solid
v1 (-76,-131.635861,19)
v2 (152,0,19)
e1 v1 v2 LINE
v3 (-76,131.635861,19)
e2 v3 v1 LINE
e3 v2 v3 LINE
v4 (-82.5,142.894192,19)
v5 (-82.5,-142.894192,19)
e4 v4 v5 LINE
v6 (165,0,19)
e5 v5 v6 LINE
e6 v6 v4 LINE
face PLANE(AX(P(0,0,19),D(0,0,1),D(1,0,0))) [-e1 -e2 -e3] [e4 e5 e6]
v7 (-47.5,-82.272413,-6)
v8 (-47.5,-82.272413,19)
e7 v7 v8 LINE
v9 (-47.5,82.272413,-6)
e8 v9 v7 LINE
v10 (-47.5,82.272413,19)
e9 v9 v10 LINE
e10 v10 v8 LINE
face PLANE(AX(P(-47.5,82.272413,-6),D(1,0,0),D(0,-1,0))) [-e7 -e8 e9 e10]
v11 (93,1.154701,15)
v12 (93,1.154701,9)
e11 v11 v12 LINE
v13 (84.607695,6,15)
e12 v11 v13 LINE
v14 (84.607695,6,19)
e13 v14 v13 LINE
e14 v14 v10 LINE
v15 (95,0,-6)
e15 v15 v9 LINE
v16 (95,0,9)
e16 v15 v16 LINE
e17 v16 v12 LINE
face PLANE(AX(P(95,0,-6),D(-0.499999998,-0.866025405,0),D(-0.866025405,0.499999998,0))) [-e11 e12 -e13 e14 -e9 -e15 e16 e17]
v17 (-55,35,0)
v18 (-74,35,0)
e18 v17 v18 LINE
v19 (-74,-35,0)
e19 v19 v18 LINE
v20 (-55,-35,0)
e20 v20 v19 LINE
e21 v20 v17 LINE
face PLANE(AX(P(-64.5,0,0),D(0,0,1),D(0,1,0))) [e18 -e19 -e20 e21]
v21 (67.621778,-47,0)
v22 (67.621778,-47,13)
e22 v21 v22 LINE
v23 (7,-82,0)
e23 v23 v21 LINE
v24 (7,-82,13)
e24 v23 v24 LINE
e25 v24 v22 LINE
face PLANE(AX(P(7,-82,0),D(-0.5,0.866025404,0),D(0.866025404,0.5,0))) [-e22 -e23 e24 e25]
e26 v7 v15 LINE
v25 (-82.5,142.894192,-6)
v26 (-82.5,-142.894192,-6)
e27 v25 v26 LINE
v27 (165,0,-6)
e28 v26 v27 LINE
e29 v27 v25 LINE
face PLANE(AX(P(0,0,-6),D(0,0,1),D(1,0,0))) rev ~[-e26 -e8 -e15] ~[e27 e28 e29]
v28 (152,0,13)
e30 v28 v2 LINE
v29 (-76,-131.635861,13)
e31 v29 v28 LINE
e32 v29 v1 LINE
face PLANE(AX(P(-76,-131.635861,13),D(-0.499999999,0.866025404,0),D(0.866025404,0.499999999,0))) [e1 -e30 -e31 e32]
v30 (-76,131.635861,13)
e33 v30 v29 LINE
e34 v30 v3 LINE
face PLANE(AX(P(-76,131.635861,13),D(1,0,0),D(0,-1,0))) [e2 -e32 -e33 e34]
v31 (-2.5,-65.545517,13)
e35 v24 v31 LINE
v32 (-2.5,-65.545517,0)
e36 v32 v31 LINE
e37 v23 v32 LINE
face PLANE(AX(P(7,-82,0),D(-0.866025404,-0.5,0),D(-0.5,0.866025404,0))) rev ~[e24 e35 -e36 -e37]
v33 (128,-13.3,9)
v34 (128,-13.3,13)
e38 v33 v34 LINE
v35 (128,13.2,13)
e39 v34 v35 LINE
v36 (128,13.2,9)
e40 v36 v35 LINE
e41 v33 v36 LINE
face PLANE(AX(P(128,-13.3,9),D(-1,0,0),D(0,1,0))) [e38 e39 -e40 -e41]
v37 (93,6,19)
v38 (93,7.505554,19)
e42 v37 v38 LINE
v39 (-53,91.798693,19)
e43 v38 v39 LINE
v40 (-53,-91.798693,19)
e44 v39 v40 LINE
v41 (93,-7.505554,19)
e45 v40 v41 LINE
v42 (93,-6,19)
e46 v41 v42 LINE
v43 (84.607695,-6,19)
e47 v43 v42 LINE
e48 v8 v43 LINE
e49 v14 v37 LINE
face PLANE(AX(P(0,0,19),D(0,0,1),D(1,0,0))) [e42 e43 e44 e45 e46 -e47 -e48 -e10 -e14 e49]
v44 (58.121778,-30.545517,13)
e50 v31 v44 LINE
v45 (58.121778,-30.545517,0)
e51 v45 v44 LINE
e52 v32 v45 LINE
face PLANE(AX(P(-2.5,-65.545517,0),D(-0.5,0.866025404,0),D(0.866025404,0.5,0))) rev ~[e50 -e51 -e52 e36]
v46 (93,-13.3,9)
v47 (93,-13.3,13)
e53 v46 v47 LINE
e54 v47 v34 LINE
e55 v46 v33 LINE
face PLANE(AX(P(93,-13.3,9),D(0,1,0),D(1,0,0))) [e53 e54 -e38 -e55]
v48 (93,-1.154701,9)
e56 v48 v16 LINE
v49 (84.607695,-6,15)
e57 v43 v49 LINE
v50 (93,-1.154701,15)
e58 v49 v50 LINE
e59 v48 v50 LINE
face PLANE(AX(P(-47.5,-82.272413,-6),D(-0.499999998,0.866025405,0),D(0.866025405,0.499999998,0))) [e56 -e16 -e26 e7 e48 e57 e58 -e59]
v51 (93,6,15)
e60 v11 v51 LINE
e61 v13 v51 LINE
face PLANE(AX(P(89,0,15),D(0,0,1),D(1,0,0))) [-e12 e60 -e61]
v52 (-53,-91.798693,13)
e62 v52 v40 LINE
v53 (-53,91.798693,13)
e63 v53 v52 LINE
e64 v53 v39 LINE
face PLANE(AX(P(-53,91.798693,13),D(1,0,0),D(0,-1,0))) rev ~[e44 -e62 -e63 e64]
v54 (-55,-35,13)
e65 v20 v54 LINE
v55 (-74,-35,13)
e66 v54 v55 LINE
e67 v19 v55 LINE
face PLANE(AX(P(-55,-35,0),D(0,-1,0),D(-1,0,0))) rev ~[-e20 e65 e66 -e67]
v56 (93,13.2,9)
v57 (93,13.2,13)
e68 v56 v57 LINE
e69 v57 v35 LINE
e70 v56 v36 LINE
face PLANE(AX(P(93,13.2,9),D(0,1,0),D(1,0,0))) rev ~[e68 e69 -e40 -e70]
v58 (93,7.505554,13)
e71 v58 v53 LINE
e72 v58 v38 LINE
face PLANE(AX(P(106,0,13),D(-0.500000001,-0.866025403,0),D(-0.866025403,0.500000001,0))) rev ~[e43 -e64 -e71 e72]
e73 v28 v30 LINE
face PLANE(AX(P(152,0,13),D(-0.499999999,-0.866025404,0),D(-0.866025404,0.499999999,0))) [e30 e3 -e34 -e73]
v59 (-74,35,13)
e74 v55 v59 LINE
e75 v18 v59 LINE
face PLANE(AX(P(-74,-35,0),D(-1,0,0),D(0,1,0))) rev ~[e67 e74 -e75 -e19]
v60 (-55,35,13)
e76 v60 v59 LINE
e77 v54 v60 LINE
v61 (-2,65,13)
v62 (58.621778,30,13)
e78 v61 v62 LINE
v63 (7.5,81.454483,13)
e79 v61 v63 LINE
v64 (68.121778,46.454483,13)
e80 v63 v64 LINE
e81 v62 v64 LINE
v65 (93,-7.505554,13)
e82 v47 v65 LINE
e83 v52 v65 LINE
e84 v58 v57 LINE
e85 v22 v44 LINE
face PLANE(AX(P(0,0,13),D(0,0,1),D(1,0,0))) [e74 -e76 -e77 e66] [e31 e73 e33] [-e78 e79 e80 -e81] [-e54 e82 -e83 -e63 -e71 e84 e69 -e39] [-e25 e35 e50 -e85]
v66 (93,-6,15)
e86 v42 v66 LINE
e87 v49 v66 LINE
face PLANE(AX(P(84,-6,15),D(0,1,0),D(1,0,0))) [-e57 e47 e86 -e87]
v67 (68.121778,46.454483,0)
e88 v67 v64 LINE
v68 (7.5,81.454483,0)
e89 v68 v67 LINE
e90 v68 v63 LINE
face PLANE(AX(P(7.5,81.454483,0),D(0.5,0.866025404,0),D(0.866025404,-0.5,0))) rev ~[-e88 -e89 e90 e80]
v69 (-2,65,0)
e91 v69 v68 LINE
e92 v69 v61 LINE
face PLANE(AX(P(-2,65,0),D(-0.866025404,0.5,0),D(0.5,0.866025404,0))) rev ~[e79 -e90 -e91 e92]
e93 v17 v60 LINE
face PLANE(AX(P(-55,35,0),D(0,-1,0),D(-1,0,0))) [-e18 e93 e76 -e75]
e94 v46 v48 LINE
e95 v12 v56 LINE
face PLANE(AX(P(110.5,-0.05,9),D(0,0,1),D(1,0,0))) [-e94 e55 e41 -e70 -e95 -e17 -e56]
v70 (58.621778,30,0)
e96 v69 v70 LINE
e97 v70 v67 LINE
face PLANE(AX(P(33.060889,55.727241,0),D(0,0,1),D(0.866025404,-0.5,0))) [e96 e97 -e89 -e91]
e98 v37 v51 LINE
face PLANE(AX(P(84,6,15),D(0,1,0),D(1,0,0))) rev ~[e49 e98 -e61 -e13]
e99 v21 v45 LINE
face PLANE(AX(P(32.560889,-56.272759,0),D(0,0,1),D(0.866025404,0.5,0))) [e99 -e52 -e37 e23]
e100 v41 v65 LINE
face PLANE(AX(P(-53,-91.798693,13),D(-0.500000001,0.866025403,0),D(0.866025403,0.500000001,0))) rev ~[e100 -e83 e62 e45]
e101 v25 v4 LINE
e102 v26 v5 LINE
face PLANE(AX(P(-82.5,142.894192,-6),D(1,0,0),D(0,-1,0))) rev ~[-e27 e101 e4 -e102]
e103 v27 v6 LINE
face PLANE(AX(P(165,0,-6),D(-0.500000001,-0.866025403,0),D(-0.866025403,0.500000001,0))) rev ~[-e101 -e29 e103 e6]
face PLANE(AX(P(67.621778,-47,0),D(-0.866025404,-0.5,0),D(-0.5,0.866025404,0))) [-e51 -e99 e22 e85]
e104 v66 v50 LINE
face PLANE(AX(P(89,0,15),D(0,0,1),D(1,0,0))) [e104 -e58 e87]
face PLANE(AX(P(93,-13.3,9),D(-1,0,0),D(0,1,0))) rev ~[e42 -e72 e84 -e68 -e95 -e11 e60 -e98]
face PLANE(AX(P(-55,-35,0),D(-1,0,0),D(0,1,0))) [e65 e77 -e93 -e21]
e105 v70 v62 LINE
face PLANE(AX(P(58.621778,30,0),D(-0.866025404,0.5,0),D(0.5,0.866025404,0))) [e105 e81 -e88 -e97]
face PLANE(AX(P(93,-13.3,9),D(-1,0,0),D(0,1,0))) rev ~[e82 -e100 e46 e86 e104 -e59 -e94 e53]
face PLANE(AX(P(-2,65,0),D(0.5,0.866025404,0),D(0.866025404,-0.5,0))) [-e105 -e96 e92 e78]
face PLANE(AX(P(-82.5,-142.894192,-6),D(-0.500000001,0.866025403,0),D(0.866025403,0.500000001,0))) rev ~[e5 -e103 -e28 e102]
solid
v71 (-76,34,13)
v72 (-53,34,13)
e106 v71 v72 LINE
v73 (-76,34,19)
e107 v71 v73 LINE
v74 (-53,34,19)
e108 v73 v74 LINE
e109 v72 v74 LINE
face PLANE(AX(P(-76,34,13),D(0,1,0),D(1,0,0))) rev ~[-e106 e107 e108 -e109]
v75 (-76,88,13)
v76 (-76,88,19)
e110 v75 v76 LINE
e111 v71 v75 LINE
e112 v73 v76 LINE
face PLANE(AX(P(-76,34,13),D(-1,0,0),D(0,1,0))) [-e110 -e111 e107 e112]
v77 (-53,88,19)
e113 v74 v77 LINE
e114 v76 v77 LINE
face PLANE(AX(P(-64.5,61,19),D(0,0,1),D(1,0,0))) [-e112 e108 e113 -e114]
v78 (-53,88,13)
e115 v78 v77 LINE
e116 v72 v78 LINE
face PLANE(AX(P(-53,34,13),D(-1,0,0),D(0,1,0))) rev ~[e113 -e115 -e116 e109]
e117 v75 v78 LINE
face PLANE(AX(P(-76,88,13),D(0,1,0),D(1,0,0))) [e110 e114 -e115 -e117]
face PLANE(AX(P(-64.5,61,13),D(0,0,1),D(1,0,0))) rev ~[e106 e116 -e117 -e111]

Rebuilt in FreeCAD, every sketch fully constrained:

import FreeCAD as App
import Part
import Sketcher
Q = App.Units.Quantity


def add_polygon(sketch, points):
    """Adds a closed chain of lines whose ends are joined by coincident constraints."""
    first, n = sketch.GeometryCount, len(points)
    for a, b in zip(points, points[1:] + points[:1]):
        sketch.addGeometry(Part.LineSegment(App.Vector(*a, 0), App.Vector(*b, 0)), False)
    for i in range(n):
        sketch.addConstraint(Sketcher.Constraint("Coincident", first + i, 2, first + (i + 1) % n, 1))

doc = App.newDocument("Part")
body = doc.addObject("PartDesign::Body", "Body")

# Sketch on XY plane
sketch1 = body.newObject("Sketcher::SketchObject", "Sketch")
sketch1.AttachmentSupport = (doc.getObject("XY_Plane"), [""])
sketch1.MapMode = "FlatFace"
sketch1.AttachmentOffset = App.Placement(App.Vector(0, 0, 13), App.Rotation())
add_polygon(sketch1, [(-76, 88), (-76, 34), (-53, 34), (-53, 88)])  # lines 0-3
sketch1.addConstraint(Sketcher.Constraint("Vertical", 0))
sketch1.addConstraint(Sketcher.Constraint("Horizontal", 1))
sketch1.addConstraint(Sketcher.Constraint("Vertical", 2))
sketch1.addConstraint(Sketcher.Constraint("Horizontal", 3))
sketch1.addConstraint(Sketcher.Constraint("DistanceX", 1, 1, 1, 2, Q("23 mm")))
sketch1.addConstraint(Sketcher.Constraint("DistanceY", 0, 2, 0, 1, Q("54 mm")))
sketch1.addConstraint(Sketcher.Constraint("DistanceX", 0, 2, -1, 1, Q("76 mm")))
sketch1.addConstraint(Sketcher.Constraint("DistanceY", -1, 1, 0, 2, Q("34 mm")))
pad1 = body.newObject("PartDesign::Pad", "Pad")
pad1.Profile = sketch1
pad1.Length = 6
body2 = doc.addObject("PartDesign::Body", "Body001")

# Sketch on XY plane
sketch2 = body2.newObject("Sketcher::SketchObject", "Sketch001")
sketch2.AttachmentSupport = (doc.getObject("XY_Plane001"), [""])
sketch2.MapMode = "FlatFace"
sketch2.AttachmentOffset = App.Placement(App.Vector(0, 0, 13), App.Rotation())
add_polygon(sketch2, [(106, 0), (-53, 92), (-53, -92)])  # lines 0-2
sketch2.addConstraint(Sketcher.Constraint("Vertical", 1))
sketch2.addConstraint(Sketcher.Constraint("PointOnObject", 2, 2, -1))
sketch2.addConstraint(Sketcher.Constraint("Equal", 0, 2))
sketch2.addConstraint(Sketcher.Constraint("Angle", 0, Q("150 deg")))
sketch2.addConstraint(Sketcher.Constraint("DistanceX", 0, 2, -1, 1, Q("53 mm")))
sketch2.addConstraint(Sketcher.Constraint("DistanceX", -1, 1, 2, 2, Q("106 mm")))
pad2 = body2.newObject("PartDesign::Pad", "Pad001")
pad2.Profile = sketch2
pad2.Length = 6
body3 = doc.addObject("PartDesign::Body", "Body002")

# Sketch on XY plane
sketch3 = body3.newObject("Sketcher::SketchObject", "Sketch002")
sketch3.AttachmentSupport = (doc.getObject("XY_Plane002"), [""])
sketch3.MapMode = "FlatFace"
sketch3.AttachmentOffset = App.Placement(App.Vector(0, 0, 13), App.Rotation())
add_polygon(sketch3, [(152, 0), (-76, 132), (-76, -132)])  # lines 0-2
sketch3.addConstraint(Sketcher.Constraint("Vertical", 1))
sketch3.addConstraint(Sketcher.Constraint("PointOnObject", 2, 2, -1))
sketch3.addConstraint(Sketcher.Constraint("Equal", 0, 2))
sketch3.addConstraint(Sketcher.Constraint("Angle", 0, Q("150 deg")))
sketch3.addConstraint(Sketcher.Constraint("DistanceX", 0, 2, -1, 1, Q("76 mm")))
sketch3.addConstraint(Sketcher.Constraint("DistanceX", -1, 1, 2, 2, Q("152 mm")))
pad3 = body3.newObject("PartDesign::Pad", "Pad002")
pad3.Profile = sketch3
pad3.Length = 6
doc.recompute()

boolean = body3.newObject("PartDesign::Boolean", "Boolean")
boolean.Type = "Cut"
boolean.addObjects([body2])
body4 = doc.addObject("PartDesign::Body", "Body003")

# Sketch on XY plane
sketch4 = body4.newObject("Sketcher::SketchObject", "Sketch003")
sketch4.AttachmentSupport = (doc.getObject("XY_Plane003"), [""])
sketch4.MapMode = "FlatFace"
sketch4.AttachmentOffset = App.Placement(App.Vector(0, 0, 15), App.Rotation())
add_polygon(sketch4, [(84, 6), (84, -6), (94, -6), (94, 6)])  # lines 0-3
sketch4.addConstraint(Sketcher.Constraint("Vertical", 0))
sketch4.addConstraint(Sketcher.Constraint("Horizontal", 1))
sketch4.addConstraint(Sketcher.Constraint("Vertical", 2))
sketch4.addConstraint(Sketcher.Constraint("Horizontal", 3))
sketch4.addConstraint(Sketcher.Constraint("DistanceX", 1, 1, 1, 2, Q("10 mm")))
sketch4.addConstraint(Sketcher.Constraint("DistanceY", 0, 2, 0, 1, Q("12 mm")))
sketch4.addConstraint(Sketcher.Constraint("DistanceX", -1, 1, 0, 2, Q("84 mm")))
sketch4.addConstraint(Sketcher.Constraint("DistanceY", 0, 2, -1, 1, Q("6 mm")))
pad4 = body4.newObject("PartDesign::Pad", "Pad003")
pad4.Profile = sketch4
pad4.Length = 4
body5 = doc.addObject("PartDesign::Body", "Body004")

# Sketch on XY plane
sketch5 = body5.newObject("Sketcher::SketchObject", "Sketch004")
sketch5.AttachmentSupport = (doc.getObject("XY_Plane004"), [""])
sketch5.MapMode = "FlatFace"
sketch5.AttachmentOffset = App.Placement(App.Vector(0, 0, 9), App.Rotation())
add_polygon(sketch5, [(93, 13), (93, -13), (128, -13), (128, 13)])  # lines 0-3
sketch5.addConstraint(Sketcher.Constraint("Vertical", 0))
sketch5.addConstraint(Sketcher.Constraint("Horizontal", 1))
sketch5.addConstraint(Sketcher.Constraint("Vertical", 2))
sketch5.addConstraint(Sketcher.Constraint("Horizontal", 3))
sketch5.addConstraint(Sketcher.Constraint("DistanceX", 1, 1, 1, 2, Q("35 mm")))
sketch5.addConstraint(Sketcher.Constraint("DistanceY", 0, 2, 0, 1, Q("26.5 mm")))
sketch5.addConstraint(Sketcher.Constraint("DistanceX", -1, 1, 0, 2, Q("93 mm")))
sketch5.addConstraint(Sketcher.Constraint("DistanceY", 0, 2, -1, 1, Q("13.3 mm")))
pad5 = body5.newObject("PartDesign::Pad", "Pad004")
pad5.Profile = sketch5
pad5.Length = 10
body6 = doc.addObject("PartDesign::Body", "Body005")

# Sketch on XY plane
sketch6 = body6.newObject("Sketcher::SketchObject", "Sketch005")
sketch6.AttachmentSupport = (doc.getObject("XY_Plane005"), [""])
sketch6.MapMode = "FlatFace"
add_polygon(sketch6, [(0, 19), (0, 0), (70, 0), (70, 19)])  # lines 0-3
sketch6.addConstraint(Sketcher.Constraint("Vertical", 0))
sketch6.addConstraint(Sketcher.Constraint("Horizontal", 1))
sketch6.addConstraint(Sketcher.Constraint("Vertical", 2))
sketch6.addConstraint(Sketcher.Constraint("Horizontal", 3))
sketch6.addConstraint(Sketcher.Constraint("Coincident", 0, 2, -1, 1))
sketch6.addConstraint(Sketcher.Constraint("DistanceX", 1, 1, 1, 2, Q("70 mm")))
sketch6.addConstraint(Sketcher.Constraint("DistanceY", 0, 2, 0, 1, Q("19 mm")))
pad6 = body6.newObject("PartDesign::Pad", "Pad005")
pad6.Profile = sketch6
pad6.Length = 19
body7 = doc.addObject("PartDesign::Body", "Body006")
doc.recompute()

body6.Placement = App.Placement(App.Vector(7, -82, 0), App.Rotation(App.Vector(0, 0, 1), 30))
boolean2 = body7.newObject("PartDesign::Boolean", "Boolean001")
boolean2.Type = "Fuse"
boolean2.addObjects([body6])
body8 = doc.addObject("PartDesign::Body", "Body007")

# Sketch on XY plane
sketch7 = body8.newObject("Sketcher::SketchObject", "Sketch006")
sketch7.AttachmentSupport = (doc.getObject("XY_Plane007"), [""])
sketch7.MapMode = "FlatFace"
add_polygon(sketch7, [(0, 19), (0, 0), (70, 0), (70, 19)])  # lines 0-3
sketch7.addConstraint(Sketcher.Constraint("Vertical", 0))
sketch7.addConstraint(Sketcher.Constraint("Horizontal", 1))
sketch7.addConstraint(Sketcher.Constraint("Vertical", 2))
sketch7.addConstraint(Sketcher.Constraint("Horizontal", 3))
sketch7.addConstraint(Sketcher.Constraint("Coincident", 0, 2, -1, 1))
sketch7.addConstraint(Sketcher.Constraint("DistanceX", 1, 1, 1, 2, Q("70 mm")))
sketch7.addConstraint(Sketcher.Constraint("DistanceY", 0, 2, 0, 1, Q("19 mm")))
pad7 = body8.newObject("PartDesign::Pad", "Pad006")
pad7.Profile = sketch7
pad7.Length = 19
body9 = doc.addObject("PartDesign::Body", "Body008")
doc.recompute()

body8.Placement = App.Placement(App.Vector(-55, -35, 0), App.Rotation(App.Vector(0, 0, 1), 90))
boolean3 = body9.newObject("PartDesign::Boolean", "Boolean002")
boolean3.Type = "Fuse"
boolean3.addObjects([body8])
body10 = doc.addObject("PartDesign::Body", "Body009")

# Sketch on XY plane
sketch8 = body10.newObject("Sketcher::SketchObject", "Sketch007")
sketch8.AttachmentSupport = (doc.getObject("XY_Plane009"), [""])
sketch8.MapMode = "FlatFace"
add_polygon(sketch8, [(0, 19), (0, 0), (70, 0), (70, 19)])  # lines 0-3
sketch8.addConstraint(Sketcher.Constraint("Vertical", 0))
sketch8.addConstraint(Sketcher.Constraint("Horizontal", 1))
sketch8.addConstraint(Sketcher.Constraint("Vertical", 2))
sketch8.addConstraint(Sketcher.Constraint("Horizontal", 3))
sketch8.addConstraint(Sketcher.Constraint("Coincident", 0, 2, -1, 1))
sketch8.addConstraint(Sketcher.Constraint("DistanceX", 1, 1, 1, 2, Q("70 mm")))
sketch8.addConstraint(Sketcher.Constraint("DistanceY", 0, 2, 0, 1, Q("19 mm")))
pad8 = body10.newObject("PartDesign::Pad", "Pad007")
pad8.Profile = sketch8
pad8.Length = 19
body11 = doc.addObject("PartDesign::Body", "Body010")
doc.recompute()

body10.Placement = App.Placement(App.Vector(-2, 65, 0), App.Rotation(App.Vector(0, 0, -1), 30))
boolean4 = body11.newObject("PartDesign::Boolean", "Boolean003")
boolean4.Type = "Fuse"
boolean4.addObjects([body10])
body12 = doc.addObject("PartDesign::Body", "Body011")

# Sketch on XY plane
sketch9 = body12.newObject("Sketcher::SketchObject", "Sketch008")
sketch9.AttachmentSupport = (doc.getObject("XY_Plane011"), [""])
sketch9.MapMode = "FlatFace"
sketch9.AttachmentOffset = App.Placement(App.Vector(0, 0, -6), App.Rotation())
add_polygon(sketch9, [(95, 0), (-48, 82), (-48, -82)])  # lines 0-2
sketch9.addConstraint(Sketcher.Constraint("Vertical", 1))
sketch9.addConstraint(Sketcher.Constraint("PointOnObject", 2, 2, -1))
sketch9.addConstraint(Sketcher.Constraint("Equal", 0, 2))
sketch9.addConstraint(Sketcher.Constraint("Angle", 0, Q("150 deg")))
sketch9.addConstraint(Sketcher.Constraint("DistanceX", -1, 1, 2, 2, Q("95 mm")))
sketch9.addConstraint(Sketcher.Constraint("DistanceX", 0, 2, -1, 1, Q("47.5 mm")))
pad9 = body12.newObject("PartDesign::Pad", "Pad008")
pad9.Profile = sketch9
pad9.Length = 25
body13 = doc.addObject("PartDesign::Body", "Body012")

# Sketch on XY plane
sketch10 = body13.newObject("Sketcher::SketchObject", "Sketch009")
sketch10.AttachmentSupport = (doc.getObject("XY_Plane012"), [""])
sketch10.MapMode = "FlatFace"
sketch10.AttachmentOffset = App.Placement(App.Vector(0, 0, -6), App.Rotation())
add_polygon(sketch10, [(165, 0), (-82, 143), (-82, -143)])  # lines 0-2
sketch10.addConstraint(Sketcher.Constraint("Vertical", 1))
sketch10.addConstraint(Sketcher.Constraint("PointOnObject", 2, 2, -1))
sketch10.addConstraint(Sketcher.Constraint("Equal", 0, 2))
sketch10.addConstraint(Sketcher.Constraint("Angle", 0, Q("150 deg")))
sketch10.addConstraint(Sketcher.Constraint("DistanceX", -1, 1, 2, 2, Q("165 mm")))
sketch10.addConstraint(Sketcher.Constraint("DistanceX", 0, 2, -1, 1, Q("82.5 mm")))
pad10 = body13.newObject("PartDesign::Pad", "Pad009")
pad10.Profile = sketch10
pad10.Length = 25
doc.recompute()

boolean5 = body13.newObject("PartDesign::Boolean", "Boolean004")
boolean5.Type = "Cut"
boolean5.addObjects([body12])
doc.recompute()

boolean6 = body13.newObject("PartDesign::Boolean", "Boolean005")
boolean6.Type = "Cut"
boolean6.addObjects([body11])
doc.recompute()

boolean7 = body13.newObject("PartDesign::Boolean", "Boolean006")
boolean7.Type = "Cut"
boolean7.addObjects([body9])
doc.recompute()

boolean8 = body13.newObject("PartDesign::Boolean", "Boolean007")
boolean8.Type = "Cut"
boolean8.addObjects([body7])
doc.recompute()

boolean9 = body13.newObject("PartDesign::Boolean", "Boolean008")
boolean9.Type = "Cut"
boolean9.addObjects([body5])
doc.recompute()

boolean10 = body13.newObject("PartDesign::Boolean", "Boolean009")
boolean10.Type = "Cut"
boolean10.addObjects([body4])
doc.recompute()

boolean11 = body13.newObject("PartDesign::Boolean", "Boolean010")
boolean11.Type = "Cut"
boolean11.addObjects([body3])

doc.recompute()
